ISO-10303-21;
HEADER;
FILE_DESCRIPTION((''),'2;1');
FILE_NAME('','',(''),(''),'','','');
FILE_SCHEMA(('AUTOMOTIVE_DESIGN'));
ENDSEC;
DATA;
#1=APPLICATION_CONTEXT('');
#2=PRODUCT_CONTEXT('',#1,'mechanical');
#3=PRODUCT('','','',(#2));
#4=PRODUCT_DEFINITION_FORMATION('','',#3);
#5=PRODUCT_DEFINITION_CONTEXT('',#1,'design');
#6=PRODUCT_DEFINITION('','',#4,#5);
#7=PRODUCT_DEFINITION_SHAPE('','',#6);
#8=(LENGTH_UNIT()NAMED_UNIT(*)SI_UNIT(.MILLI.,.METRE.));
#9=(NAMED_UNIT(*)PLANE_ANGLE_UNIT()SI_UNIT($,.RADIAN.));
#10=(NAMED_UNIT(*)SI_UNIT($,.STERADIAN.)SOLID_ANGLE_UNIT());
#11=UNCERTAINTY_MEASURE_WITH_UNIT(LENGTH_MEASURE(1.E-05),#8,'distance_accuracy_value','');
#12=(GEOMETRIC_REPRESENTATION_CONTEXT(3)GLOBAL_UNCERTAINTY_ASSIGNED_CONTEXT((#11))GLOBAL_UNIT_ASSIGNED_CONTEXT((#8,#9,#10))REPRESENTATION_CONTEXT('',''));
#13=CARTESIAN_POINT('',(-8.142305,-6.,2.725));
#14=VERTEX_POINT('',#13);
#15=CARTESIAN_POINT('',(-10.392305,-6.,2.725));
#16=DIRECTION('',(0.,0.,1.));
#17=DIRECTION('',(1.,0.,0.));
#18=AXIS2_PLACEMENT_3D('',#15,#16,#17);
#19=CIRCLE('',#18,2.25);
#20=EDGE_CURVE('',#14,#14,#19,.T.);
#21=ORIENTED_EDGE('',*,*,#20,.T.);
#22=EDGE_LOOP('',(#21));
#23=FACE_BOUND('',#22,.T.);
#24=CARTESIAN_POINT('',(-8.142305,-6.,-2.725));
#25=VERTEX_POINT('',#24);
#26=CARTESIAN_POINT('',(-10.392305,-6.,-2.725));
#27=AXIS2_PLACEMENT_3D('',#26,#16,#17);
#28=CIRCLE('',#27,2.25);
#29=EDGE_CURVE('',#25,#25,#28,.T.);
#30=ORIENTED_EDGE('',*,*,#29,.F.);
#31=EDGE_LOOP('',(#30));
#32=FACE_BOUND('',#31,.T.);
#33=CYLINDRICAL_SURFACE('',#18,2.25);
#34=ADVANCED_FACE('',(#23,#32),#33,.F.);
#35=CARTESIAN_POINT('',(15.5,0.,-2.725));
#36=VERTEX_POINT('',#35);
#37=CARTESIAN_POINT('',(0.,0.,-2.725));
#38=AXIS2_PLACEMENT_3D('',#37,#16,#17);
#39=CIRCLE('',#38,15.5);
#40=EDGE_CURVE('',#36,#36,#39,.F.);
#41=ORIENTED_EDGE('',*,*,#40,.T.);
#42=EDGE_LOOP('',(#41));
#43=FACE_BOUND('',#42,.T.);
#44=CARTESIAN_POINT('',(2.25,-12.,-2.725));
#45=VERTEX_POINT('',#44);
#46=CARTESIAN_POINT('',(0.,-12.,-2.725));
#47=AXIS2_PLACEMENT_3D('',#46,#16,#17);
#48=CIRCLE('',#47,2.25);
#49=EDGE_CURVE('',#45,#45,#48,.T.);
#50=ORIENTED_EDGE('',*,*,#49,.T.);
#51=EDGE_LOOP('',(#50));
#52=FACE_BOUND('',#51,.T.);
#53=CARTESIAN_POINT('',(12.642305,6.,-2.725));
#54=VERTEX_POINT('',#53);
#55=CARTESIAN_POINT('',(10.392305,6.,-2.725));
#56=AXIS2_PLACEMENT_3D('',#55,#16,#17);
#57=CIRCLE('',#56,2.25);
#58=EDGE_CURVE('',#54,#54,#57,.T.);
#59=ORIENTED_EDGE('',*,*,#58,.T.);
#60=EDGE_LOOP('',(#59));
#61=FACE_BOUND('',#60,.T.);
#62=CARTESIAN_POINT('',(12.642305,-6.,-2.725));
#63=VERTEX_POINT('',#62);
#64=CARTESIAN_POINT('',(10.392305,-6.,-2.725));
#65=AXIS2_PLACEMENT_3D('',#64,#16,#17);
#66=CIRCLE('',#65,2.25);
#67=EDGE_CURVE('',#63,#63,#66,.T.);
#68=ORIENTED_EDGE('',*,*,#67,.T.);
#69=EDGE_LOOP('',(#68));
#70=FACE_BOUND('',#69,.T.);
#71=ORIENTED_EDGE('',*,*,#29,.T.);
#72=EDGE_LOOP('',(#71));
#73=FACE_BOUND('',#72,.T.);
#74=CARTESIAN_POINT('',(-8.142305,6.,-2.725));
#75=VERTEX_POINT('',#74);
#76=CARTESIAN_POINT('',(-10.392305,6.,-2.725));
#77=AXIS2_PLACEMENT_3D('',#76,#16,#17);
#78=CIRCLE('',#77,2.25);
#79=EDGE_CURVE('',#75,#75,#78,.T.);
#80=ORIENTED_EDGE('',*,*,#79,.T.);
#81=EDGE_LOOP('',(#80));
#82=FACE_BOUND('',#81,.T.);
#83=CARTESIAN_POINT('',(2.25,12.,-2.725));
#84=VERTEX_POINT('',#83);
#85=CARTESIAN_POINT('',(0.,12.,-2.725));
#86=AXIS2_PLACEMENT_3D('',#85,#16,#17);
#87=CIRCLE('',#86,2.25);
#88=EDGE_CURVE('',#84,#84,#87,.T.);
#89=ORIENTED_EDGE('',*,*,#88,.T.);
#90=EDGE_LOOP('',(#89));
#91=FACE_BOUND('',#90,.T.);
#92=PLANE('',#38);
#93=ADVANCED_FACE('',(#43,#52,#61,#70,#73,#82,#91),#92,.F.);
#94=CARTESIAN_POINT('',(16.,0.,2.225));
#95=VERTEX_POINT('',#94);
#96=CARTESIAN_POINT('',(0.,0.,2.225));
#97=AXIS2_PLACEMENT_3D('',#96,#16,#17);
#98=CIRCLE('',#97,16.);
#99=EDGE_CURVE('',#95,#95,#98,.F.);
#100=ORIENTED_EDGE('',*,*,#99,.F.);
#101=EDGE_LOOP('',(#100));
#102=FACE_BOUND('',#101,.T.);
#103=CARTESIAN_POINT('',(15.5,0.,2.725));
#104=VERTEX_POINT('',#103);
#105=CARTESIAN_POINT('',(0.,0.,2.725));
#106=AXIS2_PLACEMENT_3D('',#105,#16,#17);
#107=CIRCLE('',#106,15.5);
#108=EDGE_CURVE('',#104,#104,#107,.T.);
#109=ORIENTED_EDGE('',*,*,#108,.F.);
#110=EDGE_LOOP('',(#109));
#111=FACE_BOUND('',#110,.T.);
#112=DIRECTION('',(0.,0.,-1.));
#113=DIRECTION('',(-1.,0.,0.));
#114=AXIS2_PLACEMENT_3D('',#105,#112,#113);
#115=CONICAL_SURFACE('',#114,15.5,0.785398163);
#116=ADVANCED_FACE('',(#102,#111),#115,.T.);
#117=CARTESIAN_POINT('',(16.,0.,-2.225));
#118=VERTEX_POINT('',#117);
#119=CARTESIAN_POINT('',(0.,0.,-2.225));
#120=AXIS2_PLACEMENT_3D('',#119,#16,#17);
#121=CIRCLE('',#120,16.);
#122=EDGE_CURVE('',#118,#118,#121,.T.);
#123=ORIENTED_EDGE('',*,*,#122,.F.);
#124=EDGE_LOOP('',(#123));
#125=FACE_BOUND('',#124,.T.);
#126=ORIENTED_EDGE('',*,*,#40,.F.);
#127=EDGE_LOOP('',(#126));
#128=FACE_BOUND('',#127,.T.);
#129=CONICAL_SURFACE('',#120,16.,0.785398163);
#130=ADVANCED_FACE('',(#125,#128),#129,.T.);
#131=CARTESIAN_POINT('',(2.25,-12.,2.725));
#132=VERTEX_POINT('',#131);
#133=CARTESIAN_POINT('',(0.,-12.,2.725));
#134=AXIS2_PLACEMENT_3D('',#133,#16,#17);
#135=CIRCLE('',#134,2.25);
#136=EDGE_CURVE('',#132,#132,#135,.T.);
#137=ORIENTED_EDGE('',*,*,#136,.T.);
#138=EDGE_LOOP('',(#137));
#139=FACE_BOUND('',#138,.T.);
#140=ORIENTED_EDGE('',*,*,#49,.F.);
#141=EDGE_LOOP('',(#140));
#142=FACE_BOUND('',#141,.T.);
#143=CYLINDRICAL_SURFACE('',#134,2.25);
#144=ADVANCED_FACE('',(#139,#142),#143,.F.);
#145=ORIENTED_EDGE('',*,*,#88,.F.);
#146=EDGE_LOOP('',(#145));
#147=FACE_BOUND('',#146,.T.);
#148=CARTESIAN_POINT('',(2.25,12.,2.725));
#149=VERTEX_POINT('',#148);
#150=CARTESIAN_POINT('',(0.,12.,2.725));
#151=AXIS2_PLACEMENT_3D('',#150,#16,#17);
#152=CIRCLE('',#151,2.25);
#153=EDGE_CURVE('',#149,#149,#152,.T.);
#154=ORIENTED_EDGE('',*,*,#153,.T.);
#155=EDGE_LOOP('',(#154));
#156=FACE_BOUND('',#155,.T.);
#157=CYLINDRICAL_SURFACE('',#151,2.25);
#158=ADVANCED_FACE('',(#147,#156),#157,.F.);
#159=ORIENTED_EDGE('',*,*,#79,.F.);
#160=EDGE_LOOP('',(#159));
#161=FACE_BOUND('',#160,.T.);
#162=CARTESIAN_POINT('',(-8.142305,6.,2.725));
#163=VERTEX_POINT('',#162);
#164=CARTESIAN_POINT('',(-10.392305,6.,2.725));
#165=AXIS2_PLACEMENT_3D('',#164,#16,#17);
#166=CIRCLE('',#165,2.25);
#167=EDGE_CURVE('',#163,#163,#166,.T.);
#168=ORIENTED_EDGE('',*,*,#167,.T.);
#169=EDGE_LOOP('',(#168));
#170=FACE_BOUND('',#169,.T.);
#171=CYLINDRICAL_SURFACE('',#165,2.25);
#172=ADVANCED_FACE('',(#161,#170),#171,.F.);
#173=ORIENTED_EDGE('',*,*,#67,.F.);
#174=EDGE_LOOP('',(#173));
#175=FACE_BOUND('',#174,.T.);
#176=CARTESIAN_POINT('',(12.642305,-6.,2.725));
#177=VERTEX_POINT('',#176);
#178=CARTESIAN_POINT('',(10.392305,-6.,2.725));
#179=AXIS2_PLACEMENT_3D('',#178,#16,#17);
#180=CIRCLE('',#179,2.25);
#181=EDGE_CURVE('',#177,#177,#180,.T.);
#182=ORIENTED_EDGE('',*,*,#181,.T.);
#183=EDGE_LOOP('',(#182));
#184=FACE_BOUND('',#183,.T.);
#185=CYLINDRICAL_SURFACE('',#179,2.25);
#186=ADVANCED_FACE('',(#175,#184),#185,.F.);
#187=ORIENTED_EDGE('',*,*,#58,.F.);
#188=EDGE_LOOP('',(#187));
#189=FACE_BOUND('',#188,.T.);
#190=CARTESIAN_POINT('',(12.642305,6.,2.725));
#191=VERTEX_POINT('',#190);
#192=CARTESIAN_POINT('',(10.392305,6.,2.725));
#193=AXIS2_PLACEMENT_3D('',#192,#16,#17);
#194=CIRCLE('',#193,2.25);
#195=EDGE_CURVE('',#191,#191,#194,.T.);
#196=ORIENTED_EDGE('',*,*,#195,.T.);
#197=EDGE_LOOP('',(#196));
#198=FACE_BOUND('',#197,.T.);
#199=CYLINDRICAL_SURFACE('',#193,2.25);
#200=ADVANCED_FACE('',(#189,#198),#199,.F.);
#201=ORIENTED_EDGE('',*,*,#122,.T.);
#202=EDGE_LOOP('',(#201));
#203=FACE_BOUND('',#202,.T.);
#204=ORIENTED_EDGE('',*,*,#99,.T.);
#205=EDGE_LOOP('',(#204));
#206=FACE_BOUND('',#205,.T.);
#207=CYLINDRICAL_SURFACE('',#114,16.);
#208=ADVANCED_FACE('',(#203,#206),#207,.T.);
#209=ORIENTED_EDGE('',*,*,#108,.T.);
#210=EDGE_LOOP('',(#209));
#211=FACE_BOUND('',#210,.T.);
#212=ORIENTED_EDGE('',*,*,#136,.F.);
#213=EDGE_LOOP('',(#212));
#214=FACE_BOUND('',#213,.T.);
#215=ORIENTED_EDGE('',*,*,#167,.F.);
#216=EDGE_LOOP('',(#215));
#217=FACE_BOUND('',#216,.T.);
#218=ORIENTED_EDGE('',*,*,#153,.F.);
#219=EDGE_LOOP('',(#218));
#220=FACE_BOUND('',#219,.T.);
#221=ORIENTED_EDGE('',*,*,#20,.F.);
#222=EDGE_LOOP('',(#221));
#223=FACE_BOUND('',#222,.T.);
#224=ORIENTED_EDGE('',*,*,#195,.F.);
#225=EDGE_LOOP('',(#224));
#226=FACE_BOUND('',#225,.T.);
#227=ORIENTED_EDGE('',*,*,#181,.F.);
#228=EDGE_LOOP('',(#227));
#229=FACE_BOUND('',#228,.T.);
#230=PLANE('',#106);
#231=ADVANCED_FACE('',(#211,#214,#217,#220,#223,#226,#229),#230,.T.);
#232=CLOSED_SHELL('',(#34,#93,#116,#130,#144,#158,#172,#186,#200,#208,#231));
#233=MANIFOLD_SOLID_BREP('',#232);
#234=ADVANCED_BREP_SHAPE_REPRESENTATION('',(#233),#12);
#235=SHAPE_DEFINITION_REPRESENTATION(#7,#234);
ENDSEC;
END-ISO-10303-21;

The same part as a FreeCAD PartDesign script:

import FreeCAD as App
import Part
import Sketcher
from FreeCAD import Vector


def edges_at(feature, points):
    """Names of the edges that pass closest to the given points."""
    edges = feature.Shape.Edges
    near = lambda p: min(range(len(edges)), key=lambda i: edges[i].distToShape(Part.Vertex(*p))[0])
    return sorted({f"Edge{near(p) + 1}" for p in points})

doc = App.newDocument("Part")
body = doc.addObject("PartDesign::Body", "Body")

sketch1 = body.newObject("Sketcher::SketchObject", "Sketch")
sketch1.AttachmentSupport = (doc.getObject("XY_Plane"), [""])
sketch1.MapMode = "FlatFace"
sketch1.addGeometry(Part.Circle(Vector(0, 0, 0), Vector(0, 0, 1), 16), False)
sketch1.addConstraint([
    Sketcher.Constraint("Coincident", 0, 3, -1, 1),
    Sketcher.Constraint("Diameter", 0, 32.0),
])
pad1 = body.newObject("PartDesign::Pad", "Pad")
pad1.Profile = sketch1
pad1.Length = 5.45
pad1.Midplane = True

sketch2 = body.newObject("Sketcher::SketchObject", "Sketch001")
sketch2.AttachmentSupport = (doc.getObject("XY_Plane"), [""])
sketch2.MapMode = "FlatFace"
sketch2.AttachmentOffset = App.Placement(Vector(0, 0, 2.725), App.Rotation())
sketch2.addGeometry([
    Part.Circle(Vector(-10.392305, 6, 0), Vector(0, 0, 1), 2.25),
    Part.Circle(Vector(0, 12, 0), Vector(0, 0, 1), 2.25),
    Part.Circle(Vector(10.392305, 6, 0), Vector(0, 0, 1), 2.25),
    Part.Circle(Vector(10.392305, -6, 0), Vector(0, 0, 1), 2.25),
    Part.Circle(Vector(0, -12, 0), Vector(0, 0, 1), 2.25),
    Part.Circle(Vector(-10.392305, -6, 0), Vector(0, 0, 1), 2.25),
], False)
sketch2.addConstraint([
    Sketcher.Constraint("Equal", 0, 1),
    Sketcher.Constraint("Equal", 1, 2),
    Sketcher.Constraint("Equal", 2, 3),
    Sketcher.Constraint("Equal", 3, 4),
    Sketcher.Constraint("Equal", 4, 5),
    Sketcher.Constraint("Symmetric", 0, 3, 3, 3, -1, 1),
    Sketcher.Constraint("Symmetric", 1, 3, 4, 3, -1, 1),
    Sketcher.Constraint("Symmetric", 2, 3, 5, 3, -1, 1),
    Sketcher.Constraint("Symmetric", 0, 3, 2, 3, -2),
    Sketcher.Constraint("PointOnObject", 1, 3, -2),
    Sketcher.Constraint("Diameter", 0, 4.5),
    Sketcher.Constraint("DistanceY", -1, 1, 0, 3, 6.0),
    Sketcher.Constraint("DistanceY", -1, 1, 1, 3, 12.0),
    Sketcher.Constraint("DistanceX", 0, 3, 2, 3, 20.78461),
])
doc.recompute()
hole = body.newObject("PartDesign::Hole", "Hole")
hole.Profile = sketch2
hole.ThreadType = "None"
hole.Diameter = 4.5
hole.DepthType = "ThroughAll"
doc.recompute()

chamfer = body.newObject("PartDesign::Chamfer", "Chamfer")
chamfer.Base = (hole, edges_at(hole, [(-16, 0, -2.725), (-16, 0, 2.725)]))
chamfer.Size = 0.5

doc.recompute()
